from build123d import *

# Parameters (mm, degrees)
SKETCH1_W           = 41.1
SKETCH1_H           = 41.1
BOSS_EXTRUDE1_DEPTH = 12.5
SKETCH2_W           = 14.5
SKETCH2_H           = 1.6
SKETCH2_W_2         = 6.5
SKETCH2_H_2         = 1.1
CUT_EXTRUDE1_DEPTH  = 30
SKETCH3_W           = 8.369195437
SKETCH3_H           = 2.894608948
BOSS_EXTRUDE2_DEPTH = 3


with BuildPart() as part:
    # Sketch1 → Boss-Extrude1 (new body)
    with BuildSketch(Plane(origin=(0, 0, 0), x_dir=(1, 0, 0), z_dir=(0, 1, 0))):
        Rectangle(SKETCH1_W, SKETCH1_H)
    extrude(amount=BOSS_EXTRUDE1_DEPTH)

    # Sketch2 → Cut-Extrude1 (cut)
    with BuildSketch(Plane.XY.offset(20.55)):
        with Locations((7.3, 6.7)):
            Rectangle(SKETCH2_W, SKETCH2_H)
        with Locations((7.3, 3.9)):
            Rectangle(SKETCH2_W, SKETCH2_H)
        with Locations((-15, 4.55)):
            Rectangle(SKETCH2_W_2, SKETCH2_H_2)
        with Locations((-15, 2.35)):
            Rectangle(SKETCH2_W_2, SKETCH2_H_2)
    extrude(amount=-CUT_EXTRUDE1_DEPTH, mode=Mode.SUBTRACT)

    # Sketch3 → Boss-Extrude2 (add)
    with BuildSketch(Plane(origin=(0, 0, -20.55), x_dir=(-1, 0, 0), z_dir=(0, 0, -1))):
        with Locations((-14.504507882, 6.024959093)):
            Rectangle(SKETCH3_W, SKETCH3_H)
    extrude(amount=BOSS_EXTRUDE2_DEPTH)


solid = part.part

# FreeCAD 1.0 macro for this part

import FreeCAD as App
import Part
import Sketcher

doc = App.newDocument("Part")
body = doc.addObject("PartDesign::Body", "Body")

# Sketch on XZ plane
sketch1 = body.newObject("Sketcher::SketchObject", "Sketch")
sketch1.AttachmentSupport = (doc.getObject("XZ_Plane"), [""])
sketch1.MapMode = "FlatFace"
sketch1.addGeometry([
    Part.LineSegment(App.Vector(-21, -21, 0), App.Vector(-21, 21, 0)),
    Part.LineSegment(App.Vector(-21, 21, 0), App.Vector(21, 21, 0)),
    Part.LineSegment(App.Vector(21, 21, 0), App.Vector(21, -21, 0)),
    Part.LineSegment(App.Vector(21, -21, 0), App.Vector(-21, -21, 0)),
], False)
sketch1.addConstraint([
    Sketcher.Constraint("Coincident", 0, 2, 1, 1),
    Sketcher.Constraint("Coincident", 1, 2, 2, 1),
    Sketcher.Constraint("Coincident", 2, 2, 3, 1),
    Sketcher.Constraint("Coincident", 3, 2, 0, 1),
    Sketcher.Constraint("Vertical", 0),
    Sketcher.Constraint("Horizontal", 1),
    Sketcher.Constraint("Vertical", 2),
    Sketcher.Constraint("Horizontal", 3),
    Sketcher.Constraint("Symmetric", 0, 2, 2, 2, -1, 1),
    Sketcher.Constraint("Equal", 3, 0),
    Sketcher.Constraint("DistanceX", 1, 1, 1, 2, 41.1),
])
pad1 = body.newObject("PartDesign::Pad", "Pad")
pad1.Profile = sketch1
pad1.Length = 12.5
pad1.Reversed = True

# Sketch on XY plane
sketch2 = body.newObject("Sketcher::SketchObject", "Sketch001")
sketch2.AttachmentSupport = (doc.getObject("XY_Plane"), [""])
sketch2.MapMode = "FlatFace"
sketch2.AttachmentOffset = App.Placement(App.Vector(0, 0, 20.55), App.Rotation())
sketch2.addGeometry([
    Part.LineSegment(App.Vector(0.1, 7.5, 0), App.Vector(0.1, 5.9, 0)),  # 0
    Part.LineSegment(App.Vector(0.1, 5.9, 0), App.Vector(14.6, 5.9, 0)),  # 1
    Part.LineSegment(App.Vector(14.6, 5.9, 0), App.Vector(14.6, 7.5, 0)),  # 2
    Part.LineSegment(App.Vector(14.6, 7.5, 0), App.Vector(0.1, 7.5, 0)),  # 3
    Part.LineSegment(App.Vector(0.1, 4.7, 0), App.Vector(0.1, 3.1, 0)),  # 4
    Part.LineSegment(App.Vector(0.1, 3.1, 0), App.Vector(14.6, 3.1, 0)),  # 5
    Part.LineSegment(App.Vector(14.6, 3.1, 0), App.Vector(14.6, 4.7, 0)),  # 6
    Part.LineSegment(App.Vector(14.6, 4.7, 0), App.Vector(0.1, 4.7, 0)),  # 7
    Part.LineSegment(App.Vector(-18.2, 5.1, 0), App.Vector(-18.2, 4, 0)),  # 8
    Part.LineSegment(App.Vector(-18.2, 4, 0), App.Vector(-11.8, 4, 0)),  # 9
    Part.LineSegment(App.Vector(-11.8, 4, 0), App.Vector(-11.8, 5.1, 0)),  # 10
    Part.LineSegment(App.Vector(-11.8, 5.1, 0), App.Vector(-18.2, 5.1, 0)),  # 11
    Part.LineSegment(App.Vector(-18.2, 2.9, 0), App.Vector(-18.2, 1.8, 0)),  # 12
    Part.LineSegment(App.Vector(-18.2, 1.8, 0), App.Vector(-11.8, 1.8, 0)),  # 13
    Part.LineSegment(App.Vector(-11.8, 1.8, 0), App.Vector(-11.8, 2.9, 0)),  # 14
    Part.LineSegment(App.Vector(-11.8, 2.9, 0), App.Vector(-18.2, 2.9, 0)),  # 15
], False)
sketch2.addConstraint([
    Sketcher.Constraint("Coincident", 0, 2, 1, 1),
    Sketcher.Constraint("Coincident", 1, 2, 2, 1),
    Sketcher.Constraint("Coincident", 2, 2, 3, 1),
    Sketcher.Constraint("Coincident", 3, 2, 0, 1),
    Sketcher.Constraint("Coincident", 4, 2, 5, 1),
    Sketcher.Constraint("Coincident", 5, 2, 6, 1),
    Sketcher.Constraint("Coincident", 6, 2, 7, 1),
    Sketcher.Constraint("Coincident", 7, 2, 4, 1),
    Sketcher.Constraint("Coincident", 8, 2, 9, 1),
    Sketcher.Constraint("Coincident", 9, 2, 10, 1),
    Sketcher.Constraint("Coincident", 10, 2, 11, 1),
    Sketcher.Constraint("Coincident", 11, 2, 8, 1),
    Sketcher.Constraint("Coincident", 12, 2, 13, 1),
    Sketcher.Constraint("Coincident", 13, 2, 14, 1),
    Sketcher.Constraint("Coincident", 14, 2, 15, 1),
    Sketcher.Constraint("Coincident", 15, 2, 12, 1),
    Sketcher.Constraint("Vertical", 0),
    Sketcher.Constraint("Horizontal", 1),
    Sketcher.Constraint("Vertical", 2),
    Sketcher.Constraint("Horizontal", 3),
    Sketcher.Constraint("Vertical", 4),
    Sketcher.Constraint("Horizontal", 5),
    Sketcher.Constraint("Vertical", 6),
    Sketcher.Constraint("Horizontal", 7),
    Sketcher.Constraint("Vertical", 8),
    Sketcher.Constraint("Horizontal", 9),
    Sketcher.Constraint("Vertical", 10),
    Sketcher.Constraint("Horizontal", 11),
    Sketcher.Constraint("Vertical", 12),
    Sketcher.Constraint("Horizontal", 13),
    Sketcher.Constraint("Vertical", 14),
    Sketcher.Constraint("Horizontal", 15),
    Sketcher.Constraint("Vertical", 3, 2, 4, 2),
    Sketcher.Constraint("Vertical", 2, 2, 5, 2),
    Sketcher.Constraint("Vertical", 11, 2, 12, 2),
    Sketcher.Constraint("Vertical", 10, 2, 13, 2),
    Sketcher.Constraint("Equal", 2, 4),
    Sketcher.Constraint("Equal", 10, 12),
    Sketcher.Constraint("DistanceX", 1, 1, 1, 2, 14.5),
    Sketcher.Constraint("DistanceX", 9, 1, 9, 2, 6.5),
    Sketcher.Constraint("DistanceY", 0, 2, 0, 1, 1.6),
    Sketcher.Constraint("DistanceY", 8, 2, 8, 1, 1.1),
    Sketcher.Constraint("DistanceY", -1, 1, 8, 2, 4.0),
    Sketcher.Constraint("DistanceY", 4, 2, 10, 2, 2.0),
    Sketcher.Constraint("DistanceY", -1, 1, 0, 2, 5.9),
    Sketcher.Constraint("DistanceY", -1, 1, 12, 2, 1.8),
    Sketcher.Constraint("DistanceX", 8, 2, 7, 2, 18.3),
    Sketcher.Constraint("DistanceX", -1, 1, 0, 2, 0.05),
])
pocket1 = body.newObject("PartDesign::Pocket", "Pocket")
pocket1.Profile = sketch2
pocket1.Length = 30

# Sketch on XY plane
sketch3 = body.newObject("Sketcher::SketchObject", "Sketch002")
sketch3.AttachmentSupport = (doc.getObject("XY_Plane"), [""])
sketch3.MapMode = "FlatFace"
sketch3.AttachmentOffset = App.Placement(App.Vector(0, 0, -20.55), App.Rotation())
sketch3.addGeometry([
    Part.LineSegment(App.Vector(18.7, 7.5, 0), App.Vector(18.7, 4.6, 0)),
    Part.LineSegment(App.Vector(18.7, 4.6, 0), App.Vector(10.3, 4.6, 0)),
    Part.LineSegment(App.Vector(10.3, 4.6, 0), App.Vector(10.3, 7.5, 0)),
    Part.LineSegment(App.Vector(10.3, 7.5, 0), App.Vector(18.7, 7.5, 0)),
], False)
sketch3.addConstraint([
    Sketcher.Constraint("Coincident", 0, 2, 1, 1),
    Sketcher.Constraint("Coincident", 1, 2, 2, 1),
    Sketcher.Constraint("Coincident", 2, 2, 3, 1),
    Sketcher.Constraint("Coincident", 3, 2, 0, 1),
    Sketcher.Constraint("Vertical", 0),
    Sketcher.Constraint("Horizontal", 1),
    Sketcher.Constraint("Vertical", 2),
    Sketcher.Constraint("Horizontal", 3),
    Sketcher.Constraint("DistanceY", 0, 2, 0, 1, 2.894609),
    Sketcher.Constraint("DistanceX", 1, 2, 1, 1, 8.369195),
    Sketcher.Constraint("DistanceX", -1, 1, 1, 2, 10.31991),
    Sketcher.Constraint("DistanceY", -1, 1, 0, 2, 4.577655),
])
pad2 = body.newObject("PartDesign::Pad", "Pad001")
pad2.Profile = sketch3
pad2.Length = 3
pad2.Reversed = True

doc.recompute()
